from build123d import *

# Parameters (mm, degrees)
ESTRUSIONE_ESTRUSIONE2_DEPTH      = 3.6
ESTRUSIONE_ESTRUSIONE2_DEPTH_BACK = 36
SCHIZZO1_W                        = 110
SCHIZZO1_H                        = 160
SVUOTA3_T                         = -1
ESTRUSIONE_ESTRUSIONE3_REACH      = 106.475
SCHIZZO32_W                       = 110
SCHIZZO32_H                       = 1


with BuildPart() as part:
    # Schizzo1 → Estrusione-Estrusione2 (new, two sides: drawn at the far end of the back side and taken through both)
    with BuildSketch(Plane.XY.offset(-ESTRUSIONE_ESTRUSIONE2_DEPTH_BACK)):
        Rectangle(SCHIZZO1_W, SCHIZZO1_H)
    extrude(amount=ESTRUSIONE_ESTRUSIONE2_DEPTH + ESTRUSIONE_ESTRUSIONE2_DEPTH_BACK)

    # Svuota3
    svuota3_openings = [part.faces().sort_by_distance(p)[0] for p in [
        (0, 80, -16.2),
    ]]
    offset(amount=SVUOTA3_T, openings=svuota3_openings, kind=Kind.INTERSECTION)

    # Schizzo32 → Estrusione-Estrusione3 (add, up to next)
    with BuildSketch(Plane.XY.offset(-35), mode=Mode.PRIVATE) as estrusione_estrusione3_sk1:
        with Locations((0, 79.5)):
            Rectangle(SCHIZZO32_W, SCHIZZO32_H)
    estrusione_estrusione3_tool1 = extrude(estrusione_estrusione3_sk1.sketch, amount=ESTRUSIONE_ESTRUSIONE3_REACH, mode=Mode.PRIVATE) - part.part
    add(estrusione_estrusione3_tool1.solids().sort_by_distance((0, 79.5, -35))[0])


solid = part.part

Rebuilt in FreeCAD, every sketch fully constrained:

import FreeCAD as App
import Part
import Sketcher
Q = App.Units.Quantity


def faces_at(feature, points):
    """Names of the faces that lie closest to the given points."""
    faces = feature.Shape.Faces
    near = lambda p: min(range(len(faces)), key=lambda i: faces[i].distToShape(Part.Vertex(*p))[0])
    return sorted({f"Face{near(p) + 1}" for p in points})

doc = App.newDocument("Part")
params = doc.addObject("Spreadsheet::Sheet", "Params")
for row, (alias, value) in enumerate([
    ("sketch1_width", "110 mm"),
    ("sketch1_height", "160 mm"),
    ("pad1_length", "3.6 mm"),
    ("pad1_length2", "36 mm"),
    ("thickness_wall", "1 mm"),
    ("sketch2_width", "110 mm"),
    ("sketch2_height", "1 mm"),
], start=1):
    params.set(f"A{row}", alias)
    params.set(f"B{row}", "=" + value)
    params.setAlias(f"B{row}", alias)

body = doc.addObject("PartDesign::Body", "Body")

# Sketch on XY plane
sketch1 = body.newObject("Sketcher::SketchObject", "Sketch")
sketch1.AttachmentSupport = (doc.getObject("XY_Plane"), [""])
sketch1.MapMode = "FlatFace"
sketch1.addGeometry([
    Part.LineSegment(App.Vector(-55, 80, 0), App.Vector(-55, -80, 0)),
    Part.LineSegment(App.Vector(-55, -80, 0), App.Vector(55, -80, 0)),
    Part.LineSegment(App.Vector(55, -80, 0), App.Vector(55, 80, 0)),
    Part.LineSegment(App.Vector(55, 80, 0), App.Vector(-55, 80, 0)),
], False)
sketch1.addConstraint([
    Sketcher.Constraint("Coincident", 0, 2, 1, 1),
    Sketcher.Constraint("Coincident", 1, 2, 2, 1),
    Sketcher.Constraint("Coincident", 2, 2, 3, 1),
    Sketcher.Constraint("Coincident", 3, 2, 0, 1),
    Sketcher.Constraint("Vertical", 0),
    Sketcher.Constraint("Horizontal", 1),
    Sketcher.Constraint("Vertical", 2),
    Sketcher.Constraint("Horizontal", 3),
    Sketcher.Constraint("Symmetric", 0, 2, 2, 2, -1, 1),
    Sketcher.Constraint("DistanceX", 1, 1, 1, 2, Q("110 mm")),
    Sketcher.Constraint("DistanceY", 0, 2, 0, 1, Q("160 mm")),
])
sketch1.setExpression("Constraints[9]", "Params.sketch1_width")
sketch1.setExpression("Constraints[10]", "Params.sketch1_height")
pad1 = body.newObject("PartDesign::Pad", "Pad")
pad1.Profile = sketch1
pad1.Type = "TwoLengths"
pad1.setExpression("Length", "Params.pad1_length")
pad1.setExpression("Length2", "Params.pad1_length2")
doc.recompute()

thickness = body.newObject("PartDesign::Thickness", "Thickness")
thickness.Base = (pad1, faces_at(pad1, [(0, 80, -16.2)]))
thickness.setExpression("Value", "Params.thickness_wall")
thickness.Reversed = True
thickness.Join = "Intersection"

# Sketch on XY plane
sketch2 = body.newObject("Sketcher::SketchObject", "Sketch001")
sketch2.AttachmentSupport = (doc.getObject("XY_Plane"), [""])
sketch2.MapMode = "FlatFace"
sketch2.AttachmentOffset = App.Placement(App.Vector(0, 0, -35), App.Rotation())
sketch2.addGeometry([
    Part.LineSegment(App.Vector(-55, 80, 0), App.Vector(-55, 79, 0)),
    Part.LineSegment(App.Vector(-55, 79, 0), App.Vector(55, 79, 0)),
    Part.LineSegment(App.Vector(55, 79, 0), App.Vector(55, 80, 0)),
    Part.LineSegment(App.Vector(55, 80, 0), App.Vector(-55, 80, 0)),
], False)
sketch2.addConstraint([
    Sketcher.Constraint("Coincident", 0, 2, 1, 1),
    Sketcher.Constraint("Coincident", 1, 2, 2, 1),
    Sketcher.Constraint("Coincident", 2, 2, 3, 1),
    Sketcher.Constraint("Coincident", 3, 2, 0, 1),
    Sketcher.Constraint("Vertical", 0),
    Sketcher.Constraint("Horizontal", 1),
    Sketcher.Constraint("Vertical", 2),
    Sketcher.Constraint("Horizontal", 3),
    Sketcher.Constraint("DistanceX", 1, 1, 1, 2, Q("110 mm")),
    Sketcher.Constraint("DistanceY", 0, 2, 0, 1, Q("1 mm")),
    Sketcher.Constraint("DistanceX", 0, 2, -1, 1, Q("55 mm")),
    Sketcher.Constraint("DistanceY", -1, 1, 0, 2, Q("79 mm")),
])
sketch2.setExpression("Constraints[8]", "Params.sketch2_width")
sketch2.setExpression("Constraints[9]", "Params.sketch2_height")
pad2 = body.newObject("PartDesign::Pad", "Pad001")
pad2.Profile = sketch2
pad2.Type = "UpToFirst"

doc.recompute()
